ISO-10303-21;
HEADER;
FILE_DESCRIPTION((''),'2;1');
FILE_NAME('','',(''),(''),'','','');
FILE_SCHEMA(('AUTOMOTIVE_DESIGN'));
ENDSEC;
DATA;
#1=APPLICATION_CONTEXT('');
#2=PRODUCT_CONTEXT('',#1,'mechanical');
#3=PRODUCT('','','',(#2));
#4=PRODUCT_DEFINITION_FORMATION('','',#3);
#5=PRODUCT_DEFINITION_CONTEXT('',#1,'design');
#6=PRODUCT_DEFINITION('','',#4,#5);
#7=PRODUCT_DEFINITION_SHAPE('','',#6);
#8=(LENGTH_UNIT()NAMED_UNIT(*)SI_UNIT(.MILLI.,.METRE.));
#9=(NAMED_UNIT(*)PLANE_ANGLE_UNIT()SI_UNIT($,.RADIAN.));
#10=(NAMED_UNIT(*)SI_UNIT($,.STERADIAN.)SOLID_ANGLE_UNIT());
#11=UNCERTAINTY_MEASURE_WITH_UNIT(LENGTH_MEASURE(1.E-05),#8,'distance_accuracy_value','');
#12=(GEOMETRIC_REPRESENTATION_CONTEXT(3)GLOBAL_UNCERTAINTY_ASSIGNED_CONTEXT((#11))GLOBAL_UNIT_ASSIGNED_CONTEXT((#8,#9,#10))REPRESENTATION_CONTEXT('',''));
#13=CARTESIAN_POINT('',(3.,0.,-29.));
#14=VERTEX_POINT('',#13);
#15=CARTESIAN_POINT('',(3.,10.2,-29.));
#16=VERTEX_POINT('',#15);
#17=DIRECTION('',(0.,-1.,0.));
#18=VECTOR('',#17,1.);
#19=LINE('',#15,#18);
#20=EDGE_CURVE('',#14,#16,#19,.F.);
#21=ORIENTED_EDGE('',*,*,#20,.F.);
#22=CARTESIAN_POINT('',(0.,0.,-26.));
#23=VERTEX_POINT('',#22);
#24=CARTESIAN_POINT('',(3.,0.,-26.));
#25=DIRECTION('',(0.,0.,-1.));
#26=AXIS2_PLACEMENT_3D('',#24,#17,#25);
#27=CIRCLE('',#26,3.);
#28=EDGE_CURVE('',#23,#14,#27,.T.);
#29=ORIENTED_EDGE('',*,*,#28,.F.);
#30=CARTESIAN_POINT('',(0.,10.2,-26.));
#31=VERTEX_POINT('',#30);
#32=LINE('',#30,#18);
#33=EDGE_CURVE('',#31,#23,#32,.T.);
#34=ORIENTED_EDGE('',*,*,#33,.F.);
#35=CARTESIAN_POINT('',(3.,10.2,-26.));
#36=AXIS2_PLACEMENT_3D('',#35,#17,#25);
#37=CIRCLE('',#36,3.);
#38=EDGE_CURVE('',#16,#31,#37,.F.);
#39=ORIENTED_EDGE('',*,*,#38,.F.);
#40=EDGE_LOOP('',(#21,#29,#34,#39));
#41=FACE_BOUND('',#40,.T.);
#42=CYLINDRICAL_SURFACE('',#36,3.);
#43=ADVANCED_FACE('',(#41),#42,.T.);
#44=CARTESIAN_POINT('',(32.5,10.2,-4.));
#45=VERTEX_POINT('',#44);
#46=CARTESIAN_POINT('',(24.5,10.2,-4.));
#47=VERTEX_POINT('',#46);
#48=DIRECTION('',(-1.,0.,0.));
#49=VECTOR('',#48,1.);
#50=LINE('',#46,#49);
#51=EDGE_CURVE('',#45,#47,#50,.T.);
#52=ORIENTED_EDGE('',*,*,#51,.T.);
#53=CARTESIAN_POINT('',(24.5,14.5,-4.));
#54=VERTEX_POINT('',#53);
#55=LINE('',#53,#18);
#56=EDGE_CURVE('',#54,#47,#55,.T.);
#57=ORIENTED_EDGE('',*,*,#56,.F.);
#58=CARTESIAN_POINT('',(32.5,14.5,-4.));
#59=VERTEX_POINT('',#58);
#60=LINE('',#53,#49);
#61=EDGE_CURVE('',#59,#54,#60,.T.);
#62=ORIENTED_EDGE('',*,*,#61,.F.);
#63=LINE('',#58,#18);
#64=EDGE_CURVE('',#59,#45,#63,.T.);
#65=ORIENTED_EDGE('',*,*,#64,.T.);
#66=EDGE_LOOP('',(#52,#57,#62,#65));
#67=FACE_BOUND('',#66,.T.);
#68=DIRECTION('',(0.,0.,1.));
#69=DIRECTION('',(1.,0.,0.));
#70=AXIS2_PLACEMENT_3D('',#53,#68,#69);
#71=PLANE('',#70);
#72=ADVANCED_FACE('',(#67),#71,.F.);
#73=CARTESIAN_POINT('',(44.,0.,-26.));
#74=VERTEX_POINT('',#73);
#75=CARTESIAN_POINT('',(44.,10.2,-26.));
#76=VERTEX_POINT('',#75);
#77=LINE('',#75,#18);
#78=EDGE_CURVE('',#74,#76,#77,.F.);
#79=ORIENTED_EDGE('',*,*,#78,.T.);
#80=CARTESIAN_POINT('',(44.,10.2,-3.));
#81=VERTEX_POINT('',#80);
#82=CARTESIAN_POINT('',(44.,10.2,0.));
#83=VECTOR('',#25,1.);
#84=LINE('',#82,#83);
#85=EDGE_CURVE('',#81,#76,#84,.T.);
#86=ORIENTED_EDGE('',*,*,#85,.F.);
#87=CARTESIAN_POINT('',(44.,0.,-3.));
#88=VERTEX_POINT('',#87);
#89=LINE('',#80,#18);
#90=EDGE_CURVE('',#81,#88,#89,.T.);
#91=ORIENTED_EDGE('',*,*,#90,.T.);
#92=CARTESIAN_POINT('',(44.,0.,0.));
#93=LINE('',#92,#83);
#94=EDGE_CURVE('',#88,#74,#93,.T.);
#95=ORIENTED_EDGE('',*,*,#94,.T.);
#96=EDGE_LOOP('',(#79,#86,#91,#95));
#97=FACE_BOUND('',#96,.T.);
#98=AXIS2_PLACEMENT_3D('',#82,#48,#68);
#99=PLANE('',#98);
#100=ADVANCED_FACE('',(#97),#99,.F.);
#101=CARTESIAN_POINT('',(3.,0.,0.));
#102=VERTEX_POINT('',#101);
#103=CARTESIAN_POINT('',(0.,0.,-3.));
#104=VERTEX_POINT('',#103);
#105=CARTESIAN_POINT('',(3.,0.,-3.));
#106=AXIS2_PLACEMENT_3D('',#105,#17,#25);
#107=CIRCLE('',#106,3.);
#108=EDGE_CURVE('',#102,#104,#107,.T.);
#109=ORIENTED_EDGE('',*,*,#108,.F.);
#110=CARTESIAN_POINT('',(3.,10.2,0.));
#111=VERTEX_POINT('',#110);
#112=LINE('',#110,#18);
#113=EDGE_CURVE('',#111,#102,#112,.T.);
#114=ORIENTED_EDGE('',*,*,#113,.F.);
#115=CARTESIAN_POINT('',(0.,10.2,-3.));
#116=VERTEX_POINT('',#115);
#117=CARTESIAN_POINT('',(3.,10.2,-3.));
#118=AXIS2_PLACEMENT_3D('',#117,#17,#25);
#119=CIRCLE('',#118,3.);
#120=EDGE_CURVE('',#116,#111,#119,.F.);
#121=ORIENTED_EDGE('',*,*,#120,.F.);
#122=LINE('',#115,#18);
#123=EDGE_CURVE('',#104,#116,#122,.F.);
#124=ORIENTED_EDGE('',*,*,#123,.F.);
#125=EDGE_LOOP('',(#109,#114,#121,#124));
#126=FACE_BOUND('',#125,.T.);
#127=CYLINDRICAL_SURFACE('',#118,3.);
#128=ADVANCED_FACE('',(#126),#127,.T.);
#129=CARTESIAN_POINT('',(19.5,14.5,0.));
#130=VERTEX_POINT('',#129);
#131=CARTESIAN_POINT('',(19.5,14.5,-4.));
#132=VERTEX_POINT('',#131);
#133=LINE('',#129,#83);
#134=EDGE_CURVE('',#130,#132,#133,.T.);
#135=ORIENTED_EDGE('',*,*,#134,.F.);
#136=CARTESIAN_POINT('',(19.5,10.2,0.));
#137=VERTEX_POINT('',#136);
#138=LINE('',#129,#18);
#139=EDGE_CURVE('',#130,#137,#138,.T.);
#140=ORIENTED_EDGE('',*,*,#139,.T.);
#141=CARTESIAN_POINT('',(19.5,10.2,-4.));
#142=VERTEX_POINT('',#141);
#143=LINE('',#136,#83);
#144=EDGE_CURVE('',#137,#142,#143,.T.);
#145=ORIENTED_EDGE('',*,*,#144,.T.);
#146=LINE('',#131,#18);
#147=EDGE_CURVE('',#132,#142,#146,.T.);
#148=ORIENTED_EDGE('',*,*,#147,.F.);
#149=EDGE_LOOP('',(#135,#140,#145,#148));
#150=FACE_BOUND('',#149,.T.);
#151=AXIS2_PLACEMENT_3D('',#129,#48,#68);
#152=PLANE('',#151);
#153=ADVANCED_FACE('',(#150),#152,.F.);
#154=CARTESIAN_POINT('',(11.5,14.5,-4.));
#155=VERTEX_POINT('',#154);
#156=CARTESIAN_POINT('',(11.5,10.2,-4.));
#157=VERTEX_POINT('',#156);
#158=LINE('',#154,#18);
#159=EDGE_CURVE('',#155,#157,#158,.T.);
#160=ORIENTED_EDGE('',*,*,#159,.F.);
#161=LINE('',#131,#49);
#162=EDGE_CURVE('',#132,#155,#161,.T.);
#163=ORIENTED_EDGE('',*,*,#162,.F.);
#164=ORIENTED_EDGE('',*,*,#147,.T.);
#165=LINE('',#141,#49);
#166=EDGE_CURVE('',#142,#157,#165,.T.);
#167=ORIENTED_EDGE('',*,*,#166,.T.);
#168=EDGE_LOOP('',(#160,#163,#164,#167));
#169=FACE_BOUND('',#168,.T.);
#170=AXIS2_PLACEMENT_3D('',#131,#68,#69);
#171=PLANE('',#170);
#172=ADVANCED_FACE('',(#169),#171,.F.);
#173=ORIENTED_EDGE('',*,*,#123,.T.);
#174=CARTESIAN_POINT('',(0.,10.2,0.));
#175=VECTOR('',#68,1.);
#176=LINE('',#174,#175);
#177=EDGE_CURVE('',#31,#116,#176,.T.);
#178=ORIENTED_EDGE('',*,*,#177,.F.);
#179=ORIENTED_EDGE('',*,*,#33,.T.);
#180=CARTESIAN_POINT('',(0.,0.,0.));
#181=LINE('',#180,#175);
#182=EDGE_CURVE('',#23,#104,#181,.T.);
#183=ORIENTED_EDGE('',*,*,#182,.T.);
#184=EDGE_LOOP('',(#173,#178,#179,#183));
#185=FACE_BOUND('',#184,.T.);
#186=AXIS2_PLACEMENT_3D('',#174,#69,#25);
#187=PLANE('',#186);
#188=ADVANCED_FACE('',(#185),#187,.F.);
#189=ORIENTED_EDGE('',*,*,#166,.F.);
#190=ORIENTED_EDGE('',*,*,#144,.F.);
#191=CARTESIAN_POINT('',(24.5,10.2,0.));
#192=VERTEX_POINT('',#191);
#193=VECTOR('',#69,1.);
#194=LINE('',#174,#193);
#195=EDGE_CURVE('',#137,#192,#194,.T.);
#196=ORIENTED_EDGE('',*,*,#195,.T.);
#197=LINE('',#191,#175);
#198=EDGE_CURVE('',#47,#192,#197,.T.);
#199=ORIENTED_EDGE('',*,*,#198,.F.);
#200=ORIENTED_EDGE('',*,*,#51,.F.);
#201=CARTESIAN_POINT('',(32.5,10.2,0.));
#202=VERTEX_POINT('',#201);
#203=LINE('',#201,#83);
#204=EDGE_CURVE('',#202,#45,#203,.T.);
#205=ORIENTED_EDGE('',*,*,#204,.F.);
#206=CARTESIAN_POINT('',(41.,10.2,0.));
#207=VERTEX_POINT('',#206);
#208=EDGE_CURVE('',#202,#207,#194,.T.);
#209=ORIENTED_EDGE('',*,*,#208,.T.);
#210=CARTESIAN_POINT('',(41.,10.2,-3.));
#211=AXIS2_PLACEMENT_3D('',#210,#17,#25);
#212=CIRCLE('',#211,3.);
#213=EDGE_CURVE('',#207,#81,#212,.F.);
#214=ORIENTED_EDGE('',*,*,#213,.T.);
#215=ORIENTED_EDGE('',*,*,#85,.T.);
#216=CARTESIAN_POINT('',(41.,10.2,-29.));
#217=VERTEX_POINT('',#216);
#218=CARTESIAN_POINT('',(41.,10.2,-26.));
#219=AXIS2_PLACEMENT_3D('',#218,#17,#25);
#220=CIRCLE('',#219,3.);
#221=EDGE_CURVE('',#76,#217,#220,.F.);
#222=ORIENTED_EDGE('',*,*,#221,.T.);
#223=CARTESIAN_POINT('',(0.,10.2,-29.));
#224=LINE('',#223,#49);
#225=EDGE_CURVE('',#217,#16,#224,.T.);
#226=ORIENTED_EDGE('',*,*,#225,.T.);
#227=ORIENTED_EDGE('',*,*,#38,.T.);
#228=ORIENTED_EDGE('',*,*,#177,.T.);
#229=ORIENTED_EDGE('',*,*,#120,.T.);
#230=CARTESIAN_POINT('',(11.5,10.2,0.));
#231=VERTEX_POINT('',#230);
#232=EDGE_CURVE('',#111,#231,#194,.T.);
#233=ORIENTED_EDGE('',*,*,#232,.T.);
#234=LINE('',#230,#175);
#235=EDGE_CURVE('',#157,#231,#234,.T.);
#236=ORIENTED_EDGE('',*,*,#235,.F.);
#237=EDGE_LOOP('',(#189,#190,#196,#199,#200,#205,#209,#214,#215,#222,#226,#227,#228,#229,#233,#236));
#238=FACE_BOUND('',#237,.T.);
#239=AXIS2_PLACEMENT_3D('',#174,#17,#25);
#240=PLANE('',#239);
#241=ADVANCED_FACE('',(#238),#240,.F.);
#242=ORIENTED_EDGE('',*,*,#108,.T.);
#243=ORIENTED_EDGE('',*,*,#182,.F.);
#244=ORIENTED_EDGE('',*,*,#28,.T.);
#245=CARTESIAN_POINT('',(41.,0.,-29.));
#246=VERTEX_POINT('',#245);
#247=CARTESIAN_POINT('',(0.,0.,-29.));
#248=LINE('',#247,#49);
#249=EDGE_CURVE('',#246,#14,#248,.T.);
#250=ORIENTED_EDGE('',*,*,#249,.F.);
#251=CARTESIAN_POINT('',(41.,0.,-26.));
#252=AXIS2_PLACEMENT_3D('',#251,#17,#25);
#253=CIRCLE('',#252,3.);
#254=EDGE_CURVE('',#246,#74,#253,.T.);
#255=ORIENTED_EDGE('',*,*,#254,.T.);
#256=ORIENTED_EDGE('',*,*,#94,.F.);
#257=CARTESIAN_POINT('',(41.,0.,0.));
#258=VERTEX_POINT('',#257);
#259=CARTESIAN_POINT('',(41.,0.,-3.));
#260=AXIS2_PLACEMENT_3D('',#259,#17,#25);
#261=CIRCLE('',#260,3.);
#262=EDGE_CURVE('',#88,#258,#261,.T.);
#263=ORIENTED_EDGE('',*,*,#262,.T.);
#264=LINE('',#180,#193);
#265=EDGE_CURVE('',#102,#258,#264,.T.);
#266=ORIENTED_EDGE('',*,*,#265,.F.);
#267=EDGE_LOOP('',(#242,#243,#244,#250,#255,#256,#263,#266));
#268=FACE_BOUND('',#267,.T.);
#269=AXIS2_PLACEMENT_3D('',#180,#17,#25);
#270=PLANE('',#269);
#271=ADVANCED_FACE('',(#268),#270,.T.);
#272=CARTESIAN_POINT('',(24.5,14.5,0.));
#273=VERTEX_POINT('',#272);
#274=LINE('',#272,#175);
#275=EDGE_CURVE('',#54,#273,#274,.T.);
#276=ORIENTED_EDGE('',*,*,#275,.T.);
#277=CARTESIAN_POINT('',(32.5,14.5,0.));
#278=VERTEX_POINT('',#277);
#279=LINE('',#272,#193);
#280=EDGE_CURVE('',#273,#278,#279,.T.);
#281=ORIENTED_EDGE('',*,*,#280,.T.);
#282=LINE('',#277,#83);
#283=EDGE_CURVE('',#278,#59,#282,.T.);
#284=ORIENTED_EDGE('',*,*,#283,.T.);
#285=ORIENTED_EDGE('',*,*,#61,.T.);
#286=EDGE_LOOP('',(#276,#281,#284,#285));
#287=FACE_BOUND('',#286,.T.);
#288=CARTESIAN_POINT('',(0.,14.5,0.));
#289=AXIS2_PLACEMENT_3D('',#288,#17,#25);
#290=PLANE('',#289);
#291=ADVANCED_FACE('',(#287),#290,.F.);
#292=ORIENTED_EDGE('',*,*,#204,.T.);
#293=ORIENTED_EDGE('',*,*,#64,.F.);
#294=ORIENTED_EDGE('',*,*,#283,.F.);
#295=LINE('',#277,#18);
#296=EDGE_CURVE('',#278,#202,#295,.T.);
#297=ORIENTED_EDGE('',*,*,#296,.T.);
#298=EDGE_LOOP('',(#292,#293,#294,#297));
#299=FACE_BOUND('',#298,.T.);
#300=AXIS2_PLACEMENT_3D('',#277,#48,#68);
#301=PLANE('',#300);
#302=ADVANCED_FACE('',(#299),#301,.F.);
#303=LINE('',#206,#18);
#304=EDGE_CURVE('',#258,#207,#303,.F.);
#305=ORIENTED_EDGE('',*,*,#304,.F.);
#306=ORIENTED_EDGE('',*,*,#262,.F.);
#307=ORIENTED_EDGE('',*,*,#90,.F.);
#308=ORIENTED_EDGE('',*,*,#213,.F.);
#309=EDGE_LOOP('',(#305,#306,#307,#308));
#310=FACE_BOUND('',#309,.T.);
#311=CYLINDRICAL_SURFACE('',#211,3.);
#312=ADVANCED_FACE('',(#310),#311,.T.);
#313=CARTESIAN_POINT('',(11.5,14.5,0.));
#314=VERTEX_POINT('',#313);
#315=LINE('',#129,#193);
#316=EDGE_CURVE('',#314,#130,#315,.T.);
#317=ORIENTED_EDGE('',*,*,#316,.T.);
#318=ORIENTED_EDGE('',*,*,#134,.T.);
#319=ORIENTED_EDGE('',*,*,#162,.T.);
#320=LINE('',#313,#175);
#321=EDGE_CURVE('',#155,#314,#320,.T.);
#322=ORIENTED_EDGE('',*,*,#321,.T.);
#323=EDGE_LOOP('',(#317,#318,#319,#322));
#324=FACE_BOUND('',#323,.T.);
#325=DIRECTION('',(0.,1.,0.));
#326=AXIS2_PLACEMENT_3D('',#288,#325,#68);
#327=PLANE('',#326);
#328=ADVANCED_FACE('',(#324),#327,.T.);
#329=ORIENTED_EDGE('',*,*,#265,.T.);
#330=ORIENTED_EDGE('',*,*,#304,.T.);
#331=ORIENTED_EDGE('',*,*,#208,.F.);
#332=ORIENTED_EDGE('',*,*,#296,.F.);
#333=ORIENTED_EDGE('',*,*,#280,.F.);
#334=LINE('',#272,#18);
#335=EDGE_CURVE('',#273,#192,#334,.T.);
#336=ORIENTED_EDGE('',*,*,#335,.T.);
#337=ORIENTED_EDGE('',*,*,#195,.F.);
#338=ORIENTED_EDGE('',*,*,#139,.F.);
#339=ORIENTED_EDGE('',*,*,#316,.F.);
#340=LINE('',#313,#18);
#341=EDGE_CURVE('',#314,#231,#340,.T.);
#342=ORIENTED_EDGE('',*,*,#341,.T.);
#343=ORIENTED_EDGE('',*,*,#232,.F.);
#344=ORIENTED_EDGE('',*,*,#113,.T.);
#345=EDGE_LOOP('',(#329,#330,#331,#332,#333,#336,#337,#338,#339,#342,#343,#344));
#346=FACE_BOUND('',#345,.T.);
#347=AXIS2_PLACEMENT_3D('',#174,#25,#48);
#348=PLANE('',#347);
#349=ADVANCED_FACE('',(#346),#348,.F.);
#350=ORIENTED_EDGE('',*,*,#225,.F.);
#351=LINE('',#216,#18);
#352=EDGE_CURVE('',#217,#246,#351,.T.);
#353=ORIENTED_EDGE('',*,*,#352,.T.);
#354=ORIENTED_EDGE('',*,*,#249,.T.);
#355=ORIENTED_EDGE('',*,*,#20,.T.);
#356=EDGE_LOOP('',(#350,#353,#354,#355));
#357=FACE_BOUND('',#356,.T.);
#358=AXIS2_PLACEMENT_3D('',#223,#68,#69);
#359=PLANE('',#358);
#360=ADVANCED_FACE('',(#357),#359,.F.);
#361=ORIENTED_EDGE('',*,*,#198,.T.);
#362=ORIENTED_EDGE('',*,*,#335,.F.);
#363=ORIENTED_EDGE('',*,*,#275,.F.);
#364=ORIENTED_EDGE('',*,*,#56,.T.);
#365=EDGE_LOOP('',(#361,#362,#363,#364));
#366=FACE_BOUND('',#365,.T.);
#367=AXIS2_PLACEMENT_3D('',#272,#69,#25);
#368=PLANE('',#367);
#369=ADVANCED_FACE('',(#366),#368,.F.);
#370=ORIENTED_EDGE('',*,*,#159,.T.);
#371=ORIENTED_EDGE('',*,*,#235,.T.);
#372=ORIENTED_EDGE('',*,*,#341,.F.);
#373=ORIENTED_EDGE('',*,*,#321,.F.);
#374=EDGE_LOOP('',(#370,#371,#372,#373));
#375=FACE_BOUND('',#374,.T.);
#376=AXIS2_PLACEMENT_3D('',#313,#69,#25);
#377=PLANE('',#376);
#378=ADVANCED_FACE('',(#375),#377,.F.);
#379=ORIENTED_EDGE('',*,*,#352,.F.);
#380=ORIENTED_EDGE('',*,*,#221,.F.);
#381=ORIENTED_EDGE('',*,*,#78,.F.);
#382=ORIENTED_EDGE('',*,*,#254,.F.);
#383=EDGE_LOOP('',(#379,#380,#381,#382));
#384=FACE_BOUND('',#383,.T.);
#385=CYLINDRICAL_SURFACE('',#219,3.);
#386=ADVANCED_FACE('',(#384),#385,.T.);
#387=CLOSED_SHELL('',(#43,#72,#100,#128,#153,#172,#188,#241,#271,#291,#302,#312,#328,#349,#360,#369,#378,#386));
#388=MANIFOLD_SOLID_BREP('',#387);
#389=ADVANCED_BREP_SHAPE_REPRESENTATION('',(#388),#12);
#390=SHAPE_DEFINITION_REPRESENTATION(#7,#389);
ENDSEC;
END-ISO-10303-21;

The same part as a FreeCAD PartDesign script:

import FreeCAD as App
import Part
import Sketcher


def edges_at(feature, points):
    """Names of the edges that pass closest to the given points."""
    edges = feature.Shape.Edges
    near = lambda p: min(range(len(edges)), key=lambda i: edges[i].distToShape(Part.Vertex(*p))[0])
    return sorted({f"Edge{near(p) + 1}" for p in points})


def add_polygon(sketch, points):
    """Adds a closed chain of lines whose ends are joined by coincident constraints."""
    first, n = sketch.GeometryCount, len(points)
    for a, b in zip(points, points[1:] + points[:1]):
        sketch.addGeometry(Part.LineSegment(App.Vector(*a, 0), App.Vector(*b, 0)), False)
    for i in range(n):
        sketch.addConstraint(Sketcher.Constraint("Coincident", first + i, 2, first + (i + 1) % n, 1))

doc = App.newDocument("Part")
params = doc.addObject("Spreadsheet::Sheet", "Params")
for row, (alias, value) in enumerate([
    ("sketch1_width", "44 mm"),
    ("sketch1_height", "29 mm"),
    ("pad1_length", "10.2 mm"),
    ("sketch2_width", "8 mm"),
    ("sketch2_height", "4 mm"),
    ("pad2_length", "4.3 mm"),
    ("fillet_radius", "3 mm"),
], start=1):
    params.set(f"A{row}", alias)
    params.set(f"B{row}", "=" + value)
    params.setAlias(f"B{row}", alias)

body = doc.addObject("PartDesign::Body", "Body")

# Sketch on XZ plane
sketch1 = doc.addObject("Sketcher::SketchObject", "Sketch")
body.addObject(sketch1)
sketch1.AttachmentSupport = (doc.XZ_Plane, [""])
sketch1.MapMode = "FlatFace"
add_polygon(sketch1, [(0, -29), (0, 0), (44, 0), (44, -29)])  # lines 0-3
sketch1.addConstraint(Sketcher.Constraint("Vertical", 0))
sketch1.addConstraint(Sketcher.Constraint("Horizontal", 1))
sketch1.addConstraint(Sketcher.Constraint("Vertical", 2))
sketch1.addConstraint(Sketcher.Constraint("Horizontal", 3))
sketch1.addConstraint(Sketcher.Constraint("Coincident", 0, 2, -1, 1))
sketch1.addConstraint(Sketcher.Constraint("DistanceX", 1, 1, 1, 2, 44.0))
sketch1.addConstraint(Sketcher.Constraint("DistanceY", 0, 1, 0, 2, 29.0))
sketch1.setExpression("Constraints[9]", "Params.sketch1_width")
sketch1.setExpression("Constraints[10]", "Params.sketch1_height")
pad1 = doc.addObject("PartDesign::Pad", "Pad")
body.addObject(pad1)
pad1.Profile = sketch1
pad1.setExpression("Length", "Params.pad1_length")
pad1.Reversed = True

# Sketch on XZ plane
sketch2 = doc.addObject("Sketcher::SketchObject", "Sketch001")
body.addObject(sketch2)
sketch2.AttachmentSupport = (doc.XZ_Plane, [""])
sketch2.MapMode = "FlatFace"
sketch2.AttachmentOffset = App.Placement(App.Vector(0, 0, -10.2), App.Rotation())
add_polygon(sketch2, [(24.5, -4), (24.5, 0), (32.5, 0), (32.5, -4)])  # lines 0-3
add_polygon(sketch2, [(11.5, -4), (11.5, 0), (19.5, 0), (19.5, -4)])  # lines 4-7
sketch2.addConstraint(Sketcher.Constraint("Vertical", 0))
sketch2.addConstraint(Sketcher.Constraint("Horizontal", 1))
sketch2.addConstraint(Sketcher.Constraint("Vertical", 2))
sketch2.addConstraint(Sketcher.Constraint("Horizontal", 3))
sketch2.addConstraint(Sketcher.Constraint("Vertical", 4))
sketch2.addConstraint(Sketcher.Constraint("Horizontal", 5))
sketch2.addConstraint(Sketcher.Constraint("Vertical", 6))
sketch2.addConstraint(Sketcher.Constraint("Horizontal", 7))
sketch2.addConstraint(Sketcher.Constraint("PointOnObject", 0, 2, -1))
sketch2.addConstraint(Sketcher.Constraint("PointOnObject", 4, 2, -1))
sketch2.addConstraint(Sketcher.Constraint("Horizontal", 3, 2, 6, 2))
sketch2.addConstraint(Sketcher.Constraint("Equal", 3, 5))
sketch2.addConstraint(Sketcher.Constraint("DistanceX", 1, 1, 1, 2, 8.0))
sketch2.addConstraint(Sketcher.Constraint("DistanceY", 0, 1, 0, 2, 4.0))
sketch2.addConstraint(Sketcher.Constraint("DistanceX", 4, 2, 0, 2, 13.0))
sketch2.addConstraint(Sketcher.Constraint("DistanceX", -1, 1, 0, 2, 24.5))
sketch2.setExpression("Constraints[20]", "Params.sketch2_width")
sketch2.setExpression("Constraints[21]", "Params.sketch2_height")
pad2 = doc.addObject("PartDesign::Pad", "Pad001")
body.addObject(pad2)
pad2.Profile = sketch2
pad2.setExpression("Length", "Params.pad2_length")
pad2.Reversed = True
doc.recompute()

fillet = doc.addObject("PartDesign::Fillet", "Fillet")
body.addObject(fillet)
fillet.Base = (pad2, edges_at(pad2, [
    (0, 5.1, -29),
    (44, 5.1, -29),
    (44, 5.1, 0),
    (0, 5.1, 0),
]))
fillet.setExpression("Radius", "Params.fillet_radius")

doc.recompute()
